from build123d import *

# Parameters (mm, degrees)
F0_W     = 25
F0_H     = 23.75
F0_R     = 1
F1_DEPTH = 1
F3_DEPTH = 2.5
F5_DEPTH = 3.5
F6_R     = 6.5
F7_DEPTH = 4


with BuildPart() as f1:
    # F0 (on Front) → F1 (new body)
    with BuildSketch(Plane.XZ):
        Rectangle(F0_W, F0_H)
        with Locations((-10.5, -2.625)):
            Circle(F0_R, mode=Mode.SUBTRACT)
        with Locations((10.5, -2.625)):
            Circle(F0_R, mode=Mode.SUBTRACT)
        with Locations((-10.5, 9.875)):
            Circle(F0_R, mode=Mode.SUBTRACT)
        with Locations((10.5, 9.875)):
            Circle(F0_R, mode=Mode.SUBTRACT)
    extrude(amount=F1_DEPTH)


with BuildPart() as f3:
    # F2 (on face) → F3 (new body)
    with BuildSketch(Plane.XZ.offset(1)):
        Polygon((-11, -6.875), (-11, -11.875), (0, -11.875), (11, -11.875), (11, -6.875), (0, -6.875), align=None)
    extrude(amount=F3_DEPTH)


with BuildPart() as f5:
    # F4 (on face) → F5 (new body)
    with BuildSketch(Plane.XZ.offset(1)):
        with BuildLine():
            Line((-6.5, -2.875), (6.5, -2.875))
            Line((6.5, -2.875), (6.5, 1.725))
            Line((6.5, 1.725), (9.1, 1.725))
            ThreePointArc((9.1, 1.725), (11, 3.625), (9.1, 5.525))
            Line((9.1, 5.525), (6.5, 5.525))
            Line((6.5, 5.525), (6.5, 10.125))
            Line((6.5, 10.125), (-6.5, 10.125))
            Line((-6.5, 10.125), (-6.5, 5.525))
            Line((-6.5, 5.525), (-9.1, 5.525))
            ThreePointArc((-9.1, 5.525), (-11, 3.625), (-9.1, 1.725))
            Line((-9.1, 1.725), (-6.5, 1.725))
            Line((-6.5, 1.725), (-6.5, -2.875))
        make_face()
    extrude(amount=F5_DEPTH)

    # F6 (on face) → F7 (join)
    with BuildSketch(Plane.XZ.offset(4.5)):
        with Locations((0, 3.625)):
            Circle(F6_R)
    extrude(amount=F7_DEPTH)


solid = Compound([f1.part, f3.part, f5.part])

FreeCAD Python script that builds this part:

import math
import FreeCAD as App
import Part
import Sketcher
from FreeCAD import Vector
Q = App.Units.Quantity

doc = App.newDocument("Part")
body = doc.addObject("PartDesign::Body", "Body")

sketch1 = body.newObject("Sketcher::SketchObject", "Sketch")
sketch1.AttachmentSupport = (doc.getObject("XZ_Plane"), [""])
sketch1.MapMode = "FlatFace"
sketch1.addGeometry(Part.LineSegment(Vector(-12.5, 11.9, 0), Vector(-12.5, -11.9, 0)), False)
sketch1.addGeometry(Part.LineSegment(Vector(-12.5, -11.9, 0), Vector(12.5, -11.9, 0)), False)
sketch1.addGeometry(Part.LineSegment(Vector(12.5, -11.9, 0), Vector(12.5, 11.9, 0)), False)
sketch1.addGeometry(Part.LineSegment(Vector(12.5, 11.9, 0), Vector(-12.5, 11.9, 0)), False)
sketch1.addGeometry(Part.Circle(Vector(-10.5, -2.6, 0), Vector(0, 0, 1), 1), False)
sketch1.addGeometry(Part.Circle(Vector(10.5, -2.6, 0), Vector(0, 0, 1), 1), False)
sketch1.addGeometry(Part.Circle(Vector(-10.5, 9.9, 0), Vector(0, 0, 1), 1), False)
sketch1.addGeometry(Part.Circle(Vector(10.5, 9.9, 0), Vector(0, 0, 1), 1), False)
sketch1.addConstraint(Sketcher.Constraint("Coincident", 0, 2, 1, 1))
sketch1.addConstraint(Sketcher.Constraint("Coincident", 1, 2, 2, 1))
sketch1.addConstraint(Sketcher.Constraint("Coincident", 2, 2, 3, 1))
sketch1.addConstraint(Sketcher.Constraint("Coincident", 3, 2, 0, 1))
sketch1.addConstraint(Sketcher.Constraint("Vertical", 0))
sketch1.addConstraint(Sketcher.Constraint("Horizontal", 1))
sketch1.addConstraint(Sketcher.Constraint("Vertical", 2))
sketch1.addConstraint(Sketcher.Constraint("Horizontal", 3))
sketch1.addConstraint(Sketcher.Constraint("Equal", 4, 5))
sketch1.addConstraint(Sketcher.Constraint("Equal", 5, 6))
sketch1.addConstraint(Sketcher.Constraint("Equal", 6, 7))
sketch1.addConstraint(Sketcher.Constraint("Symmetric", 0, 2, 2, 2, -1, 1))
sketch1.addConstraint(Sketcher.Constraint("Symmetric", 4, 3, 5, 3, -2))
sketch1.addConstraint(Sketcher.Constraint("Symmetric", 6, 3, 7, 3, -2))
sketch1.addConstraint(Sketcher.Constraint("Vertical", 4, 3, 6, 3))
sketch1.addConstraint(Sketcher.Constraint("Diameter", 4, Q("2 mm")))
sketch1.addConstraint(Sketcher.Constraint("DistanceX", 1, 1, 1, 2, Q("25 mm")))
sketch1.addConstraint(Sketcher.Constraint("DistanceX", 4, 3, 5, 3, Q("21 mm")))
sketch1.addConstraint(Sketcher.Constraint("DistanceY", 7, 3, 2, 2, Q("2 mm")))
sketch1.addConstraint(Sketcher.Constraint("DistanceY", 0, 2, 0, 1, Q("23.75 mm")))
sketch1.addConstraint(Sketcher.Constraint("DistanceY", 4, 3, 6, 3, Q("12.5 mm")))
pad1 = body.newObject("PartDesign::Pad", "Pad")
pad1.Profile = sketch1
pad1.Length = 1
body2 = doc.addObject("PartDesign::Body", "Body001")

sketch2 = body2.newObject("Sketcher::SketchObject", "Sketch001")
sketch2.AttachmentSupport = (doc.getObject("XZ_Plane001"), [""])
sketch2.MapMode = "FlatFace"
sketch2.AttachmentOffset = App.Placement(Vector(0, 0, 1), App.Rotation())
sketch2.addGeometry(Part.LineSegment(Vector(-11, -7, 0), Vector(-11, -12, 0)), False)
sketch2.addGeometry(Part.LineSegment(Vector(-11, -12, 0), Vector(11, -12, 0)), False)
sketch2.addGeometry(Part.LineSegment(Vector(11, -12, 0), Vector(11, -7, 0)), False)
sketch2.addGeometry(Part.LineSegment(Vector(11, -7, 0), Vector(-11, -7, 0)), False)
sketch2.addConstraint(Sketcher.Constraint("Coincident", 0, 2, 1, 1))
sketch2.addConstraint(Sketcher.Constraint("Coincident", 1, 2, 2, 1))
sketch2.addConstraint(Sketcher.Constraint("Coincident", 2, 2, 3, 1))
sketch2.addConstraint(Sketcher.Constraint("Coincident", 3, 2, 0, 1))
sketch2.addConstraint(Sketcher.Constraint("Vertical", 0))
sketch2.addConstraint(Sketcher.Constraint("Horizontal", 1))
sketch2.addConstraint(Sketcher.Constraint("Vertical", 2))
sketch2.addConstraint(Sketcher.Constraint("Horizontal", 3))
sketch2.addConstraint(Sketcher.Constraint("DistanceX", 1, 1, 1, 2, Q("22 mm")))
sketch2.addConstraint(Sketcher.Constraint("DistanceY", 0, 2, 0, 1, Q("5 mm")))
sketch2.addConstraint(Sketcher.Constraint("DistanceX", 0, 2, -1, 1, Q("11 mm")))
sketch2.addConstraint(Sketcher.Constraint("DistanceY", 0, 2, -1, 1, Q("11.875 mm")))
pad2 = body2.newObject("PartDesign::Pad", "Pad001")
pad2.Profile = sketch2
pad2.Length = 2.5
body3 = doc.addObject("PartDesign::Body", "Body002")

sketch3 = body3.newObject("Sketcher::SketchObject", "Sketch002")
sketch3.AttachmentSupport = (doc.getObject("XZ_Plane002"), [""])
sketch3.MapMode = "FlatFace"
sketch3.AttachmentOffset = App.Placement(Vector(0, 0, 1), App.Rotation())
sketch3.addGeometry(Part.LineSegment(Vector(-6.5, -2.9, 0), Vector(6.5, -2.9, 0)), False)
sketch3.addGeometry(Part.LineSegment(Vector(6.5, -2.9, 0), Vector(6.5, 1.7, 0)), False)
sketch3.addGeometry(Part.LineSegment(Vector(6.5, 1.7, 0), Vector(9.1, 1.7, 0)), False)
sketch3.addGeometry(Part.ArcOfCircle(Part.Circle(Vector(9.1, 3.6, 0), Vector(0, 0, 1), 1.9), math.radians(-90), math.radians(90)), False)
sketch3.addGeometry(Part.LineSegment(Vector(9.1, 5.5, 0), Vector(6.5, 5.5, 0)), False)
sketch3.addGeometry(Part.LineSegment(Vector(6.5, 5.5, 0), Vector(6.5, 10.1, 0)), False)
sketch3.addGeometry(Part.LineSegment(Vector(6.5, 10.1, 0), Vector(-6.5, 10.1, 0)), False)
sketch3.addGeometry(Part.LineSegment(Vector(-6.5, 10.1, 0), Vector(-6.5, 5.5, 0)), False)
sketch3.addGeometry(Part.LineSegment(Vector(-6.5, 5.5, 0), Vector(-9.1, 5.5, 0)), False)
sketch3.addGeometry(Part.ArcOfCircle(Part.Circle(Vector(-9.1, 3.6, 0), Vector(0, 0, 1), 1.9), math.radians(90), math.radians(270)), False)
sketch3.addGeometry(Part.LineSegment(Vector(-9.1, 1.7, 0), Vector(-6.5, 1.7, 0)), False)
sketch3.addGeometry(Part.LineSegment(Vector(-6.5, 1.7, 0), Vector(-6.5, -2.9, 0)), False)
sketch3.addConstraint(Sketcher.Constraint("Coincident", 0, 2, 1, 1))
sketch3.addConstraint(Sketcher.Constraint("Coincident", 1, 2, 2, 1))
sketch3.addConstraint(Sketcher.Constraint("Tangent", 2, 2, 3, 1))
sketch3.addConstraint(Sketcher.Constraint("Tangent", 3, 2, 4, 1))
sketch3.addConstraint(Sketcher.Constraint("Coincident", 4, 2, 5, 1))
sketch3.addConstraint(Sketcher.Constraint("Coincident", 5, 2, 6, 1))
sketch3.addConstraint(Sketcher.Constraint("Coincident", 6, 2, 7, 1))
sketch3.addConstraint(Sketcher.Constraint("Coincident", 7, 2, 8, 1))
sketch3.addConstraint(Sketcher.Constraint("Tangent", 8, 2, 9, 1))
sketch3.addConstraint(Sketcher.Constraint("Tangent", 9, 2, 10, 1))
sketch3.addConstraint(Sketcher.Constraint("Coincident", 10, 2, 11, 1))
sketch3.addConstraint(Sketcher.Constraint("Coincident", 11, 2, 0, 1))
sketch3.addConstraint(Sketcher.Constraint("Horizontal", 0))
sketch3.addConstraint(Sketcher.Constraint("Vertical", 1))
sketch3.addConstraint(Sketcher.Constraint("Horizontal", 2))
sketch3.addConstraint(Sketcher.Constraint("Horizontal", 4))
sketch3.addConstraint(Sketcher.Constraint("Vertical", 5))
sketch3.addConstraint(Sketcher.Constraint("Horizontal", 6))
sketch3.addConstraint(Sketcher.Constraint("Vertical", 7))
sketch3.addConstraint(Sketcher.Constraint("Horizontal", 8))
sketch3.addConstraint(Sketcher.Constraint("Horizontal", 10))
sketch3.addConstraint(Sketcher.Constraint("Vertical", 11))
sketch3.addConstraint(Sketcher.Constraint("Equal", 3, 9))
sketch3.addConstraint(Sketcher.Constraint("Symmetric", 3, 3, 9, 3, -2))
sketch3.addConstraint(Sketcher.Constraint("Vertical", 1, 2, 4, 2))
sketch3.addConstraint(Sketcher.Constraint("Vertical", 7, 2, 10, 2))
sketch3.addConstraint(Sketcher.Constraint("Equal", 4, 8))
sketch3.addConstraint(Sketcher.Constraint("Equal", 1, 5))
sketch3.addConstraint(Sketcher.Constraint("Radius", 3, Q("1.9 mm")))
sketch3.addConstraint(Sketcher.Constraint("DistanceX", 0, 1, 0, 2, Q("13 mm")))
sketch3.addConstraint(Sketcher.Constraint("DistanceX", 2, 1, 2, 2, Q("2.6 mm")))
sketch3.addConstraint(Sketcher.Constraint("DistanceY", 1, 1, 1, 2, Q("4.6 mm")))
sketch3.addConstraint(Sketcher.Constraint("DistanceY", -1, 1, 3, 3, Q("3.625 mm")))
pad3 = body3.newObject("PartDesign::Pad", "Pad002")
pad3.Profile = sketch3
pad3.Length = 3.5

sketch4 = body3.newObject("Sketcher::SketchObject", "Sketch003")
sketch4.AttachmentSupport = (doc.getObject("XZ_Plane002"), [""])
sketch4.MapMode = "FlatFace"
sketch4.AttachmentOffset = App.Placement(Vector(0, 0, 4.5), App.Rotation())
sketch4.addGeometry(Part.Circle(Vector(0, 4, 0), Vector(0, 0, 1), 6), False)
sketch4.addConstraint(Sketcher.Constraint("PointOnObject", 0, 3, -2))
sketch4.addConstraint(Sketcher.Constraint("Diameter", 0, Q("13 mm")))
sketch4.addConstraint(Sketcher.Constraint("DistanceY", -1, 1, 0, 3, Q("3.625 mm")))
pad4 = body3.newObject("PartDesign::Pad", "Pad003")
pad4.Profile = sketch4
pad4.Length = 4

doc.recompute()
